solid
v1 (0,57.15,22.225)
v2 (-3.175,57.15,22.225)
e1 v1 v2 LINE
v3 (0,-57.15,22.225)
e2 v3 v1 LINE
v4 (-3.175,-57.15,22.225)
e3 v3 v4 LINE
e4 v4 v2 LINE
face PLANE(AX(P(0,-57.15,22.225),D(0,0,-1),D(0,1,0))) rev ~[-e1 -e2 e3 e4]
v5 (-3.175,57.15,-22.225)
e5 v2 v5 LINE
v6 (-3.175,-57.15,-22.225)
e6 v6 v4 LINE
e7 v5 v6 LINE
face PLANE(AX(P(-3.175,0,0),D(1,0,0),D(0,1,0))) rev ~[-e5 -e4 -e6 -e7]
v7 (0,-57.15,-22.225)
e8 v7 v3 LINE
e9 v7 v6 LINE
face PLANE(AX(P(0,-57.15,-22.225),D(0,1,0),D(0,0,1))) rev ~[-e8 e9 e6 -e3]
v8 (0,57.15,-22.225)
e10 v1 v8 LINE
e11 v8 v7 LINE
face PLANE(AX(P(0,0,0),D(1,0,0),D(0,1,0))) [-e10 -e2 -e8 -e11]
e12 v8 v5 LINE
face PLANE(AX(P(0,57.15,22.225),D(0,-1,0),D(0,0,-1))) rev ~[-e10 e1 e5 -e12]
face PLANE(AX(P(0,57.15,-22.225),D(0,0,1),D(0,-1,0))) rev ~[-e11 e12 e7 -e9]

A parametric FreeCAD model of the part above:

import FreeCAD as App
import Part
import Sketcher
Q = App.Units.Quantity

doc = App.newDocument("Part")
body = doc.addObject("PartDesign::Body", "Body")

# Sketch on YZ plane
sketch1 = doc.addObject("Sketcher::SketchObject", "Sketch")
body.addObject(sketch1)
sketch1.AttachmentSupport = (doc.YZ_Plane, [""])
sketch1.MapMode = "FlatFace"
sketch1.addGeometry(Part.LineSegment(App.Vector(-57.15, -22.225, 0), App.Vector(57.15, -22.225, 0)), False)
sketch1.addGeometry(Part.LineSegment(App.Vector(57.15, -22.225, 0), App.Vector(57.15, 22.225, 0)), False)
sketch1.addGeometry(Part.LineSegment(App.Vector(57.15, 22.225, 0), App.Vector(-57.15, 22.225, 0)), False)
sketch1.addGeometry(Part.LineSegment(App.Vector(-57.15, 22.225, 0), App.Vector(-57.15, -22.225, 0)), False)
sketch1.addConstraint(Sketcher.Constraint("Coincident", 0, 2, 1, 1))
sketch1.addConstraint(Sketcher.Constraint("Coincident", 1, 2, 2, 1))
sketch1.addConstraint(Sketcher.Constraint("Coincident", 2, 2, 3, 1))
sketch1.addConstraint(Sketcher.Constraint("Coincident", 3, 2, 0, 1))
sketch1.addConstraint(Sketcher.Constraint("Horizontal", 0))
sketch1.addConstraint(Sketcher.Constraint("Vertical", 1))
sketch1.addConstraint(Sketcher.Constraint("Horizontal", 2))
sketch1.addConstraint(Sketcher.Constraint("Vertical", 3))
sketch1.addConstraint(Sketcher.Constraint("Symmetric", 0, 2, 2, 2, -1, 1))
sketch1.addConstraint(Sketcher.Constraint("DistanceX", 0, 1, 0, 2, Q("4.5 in")))
sketch1.addConstraint(Sketcher.Constraint("DistanceY", 1, 1, 1, 2, Q("1.75 in")))
pad1 = doc.addObject("PartDesign::Pad", "Pad")
body.addObject(pad1)
pad1.Profile = sketch1
pad1.Length = Q("0.125 in")
pad1.Reversed = True

doc.recompute()
